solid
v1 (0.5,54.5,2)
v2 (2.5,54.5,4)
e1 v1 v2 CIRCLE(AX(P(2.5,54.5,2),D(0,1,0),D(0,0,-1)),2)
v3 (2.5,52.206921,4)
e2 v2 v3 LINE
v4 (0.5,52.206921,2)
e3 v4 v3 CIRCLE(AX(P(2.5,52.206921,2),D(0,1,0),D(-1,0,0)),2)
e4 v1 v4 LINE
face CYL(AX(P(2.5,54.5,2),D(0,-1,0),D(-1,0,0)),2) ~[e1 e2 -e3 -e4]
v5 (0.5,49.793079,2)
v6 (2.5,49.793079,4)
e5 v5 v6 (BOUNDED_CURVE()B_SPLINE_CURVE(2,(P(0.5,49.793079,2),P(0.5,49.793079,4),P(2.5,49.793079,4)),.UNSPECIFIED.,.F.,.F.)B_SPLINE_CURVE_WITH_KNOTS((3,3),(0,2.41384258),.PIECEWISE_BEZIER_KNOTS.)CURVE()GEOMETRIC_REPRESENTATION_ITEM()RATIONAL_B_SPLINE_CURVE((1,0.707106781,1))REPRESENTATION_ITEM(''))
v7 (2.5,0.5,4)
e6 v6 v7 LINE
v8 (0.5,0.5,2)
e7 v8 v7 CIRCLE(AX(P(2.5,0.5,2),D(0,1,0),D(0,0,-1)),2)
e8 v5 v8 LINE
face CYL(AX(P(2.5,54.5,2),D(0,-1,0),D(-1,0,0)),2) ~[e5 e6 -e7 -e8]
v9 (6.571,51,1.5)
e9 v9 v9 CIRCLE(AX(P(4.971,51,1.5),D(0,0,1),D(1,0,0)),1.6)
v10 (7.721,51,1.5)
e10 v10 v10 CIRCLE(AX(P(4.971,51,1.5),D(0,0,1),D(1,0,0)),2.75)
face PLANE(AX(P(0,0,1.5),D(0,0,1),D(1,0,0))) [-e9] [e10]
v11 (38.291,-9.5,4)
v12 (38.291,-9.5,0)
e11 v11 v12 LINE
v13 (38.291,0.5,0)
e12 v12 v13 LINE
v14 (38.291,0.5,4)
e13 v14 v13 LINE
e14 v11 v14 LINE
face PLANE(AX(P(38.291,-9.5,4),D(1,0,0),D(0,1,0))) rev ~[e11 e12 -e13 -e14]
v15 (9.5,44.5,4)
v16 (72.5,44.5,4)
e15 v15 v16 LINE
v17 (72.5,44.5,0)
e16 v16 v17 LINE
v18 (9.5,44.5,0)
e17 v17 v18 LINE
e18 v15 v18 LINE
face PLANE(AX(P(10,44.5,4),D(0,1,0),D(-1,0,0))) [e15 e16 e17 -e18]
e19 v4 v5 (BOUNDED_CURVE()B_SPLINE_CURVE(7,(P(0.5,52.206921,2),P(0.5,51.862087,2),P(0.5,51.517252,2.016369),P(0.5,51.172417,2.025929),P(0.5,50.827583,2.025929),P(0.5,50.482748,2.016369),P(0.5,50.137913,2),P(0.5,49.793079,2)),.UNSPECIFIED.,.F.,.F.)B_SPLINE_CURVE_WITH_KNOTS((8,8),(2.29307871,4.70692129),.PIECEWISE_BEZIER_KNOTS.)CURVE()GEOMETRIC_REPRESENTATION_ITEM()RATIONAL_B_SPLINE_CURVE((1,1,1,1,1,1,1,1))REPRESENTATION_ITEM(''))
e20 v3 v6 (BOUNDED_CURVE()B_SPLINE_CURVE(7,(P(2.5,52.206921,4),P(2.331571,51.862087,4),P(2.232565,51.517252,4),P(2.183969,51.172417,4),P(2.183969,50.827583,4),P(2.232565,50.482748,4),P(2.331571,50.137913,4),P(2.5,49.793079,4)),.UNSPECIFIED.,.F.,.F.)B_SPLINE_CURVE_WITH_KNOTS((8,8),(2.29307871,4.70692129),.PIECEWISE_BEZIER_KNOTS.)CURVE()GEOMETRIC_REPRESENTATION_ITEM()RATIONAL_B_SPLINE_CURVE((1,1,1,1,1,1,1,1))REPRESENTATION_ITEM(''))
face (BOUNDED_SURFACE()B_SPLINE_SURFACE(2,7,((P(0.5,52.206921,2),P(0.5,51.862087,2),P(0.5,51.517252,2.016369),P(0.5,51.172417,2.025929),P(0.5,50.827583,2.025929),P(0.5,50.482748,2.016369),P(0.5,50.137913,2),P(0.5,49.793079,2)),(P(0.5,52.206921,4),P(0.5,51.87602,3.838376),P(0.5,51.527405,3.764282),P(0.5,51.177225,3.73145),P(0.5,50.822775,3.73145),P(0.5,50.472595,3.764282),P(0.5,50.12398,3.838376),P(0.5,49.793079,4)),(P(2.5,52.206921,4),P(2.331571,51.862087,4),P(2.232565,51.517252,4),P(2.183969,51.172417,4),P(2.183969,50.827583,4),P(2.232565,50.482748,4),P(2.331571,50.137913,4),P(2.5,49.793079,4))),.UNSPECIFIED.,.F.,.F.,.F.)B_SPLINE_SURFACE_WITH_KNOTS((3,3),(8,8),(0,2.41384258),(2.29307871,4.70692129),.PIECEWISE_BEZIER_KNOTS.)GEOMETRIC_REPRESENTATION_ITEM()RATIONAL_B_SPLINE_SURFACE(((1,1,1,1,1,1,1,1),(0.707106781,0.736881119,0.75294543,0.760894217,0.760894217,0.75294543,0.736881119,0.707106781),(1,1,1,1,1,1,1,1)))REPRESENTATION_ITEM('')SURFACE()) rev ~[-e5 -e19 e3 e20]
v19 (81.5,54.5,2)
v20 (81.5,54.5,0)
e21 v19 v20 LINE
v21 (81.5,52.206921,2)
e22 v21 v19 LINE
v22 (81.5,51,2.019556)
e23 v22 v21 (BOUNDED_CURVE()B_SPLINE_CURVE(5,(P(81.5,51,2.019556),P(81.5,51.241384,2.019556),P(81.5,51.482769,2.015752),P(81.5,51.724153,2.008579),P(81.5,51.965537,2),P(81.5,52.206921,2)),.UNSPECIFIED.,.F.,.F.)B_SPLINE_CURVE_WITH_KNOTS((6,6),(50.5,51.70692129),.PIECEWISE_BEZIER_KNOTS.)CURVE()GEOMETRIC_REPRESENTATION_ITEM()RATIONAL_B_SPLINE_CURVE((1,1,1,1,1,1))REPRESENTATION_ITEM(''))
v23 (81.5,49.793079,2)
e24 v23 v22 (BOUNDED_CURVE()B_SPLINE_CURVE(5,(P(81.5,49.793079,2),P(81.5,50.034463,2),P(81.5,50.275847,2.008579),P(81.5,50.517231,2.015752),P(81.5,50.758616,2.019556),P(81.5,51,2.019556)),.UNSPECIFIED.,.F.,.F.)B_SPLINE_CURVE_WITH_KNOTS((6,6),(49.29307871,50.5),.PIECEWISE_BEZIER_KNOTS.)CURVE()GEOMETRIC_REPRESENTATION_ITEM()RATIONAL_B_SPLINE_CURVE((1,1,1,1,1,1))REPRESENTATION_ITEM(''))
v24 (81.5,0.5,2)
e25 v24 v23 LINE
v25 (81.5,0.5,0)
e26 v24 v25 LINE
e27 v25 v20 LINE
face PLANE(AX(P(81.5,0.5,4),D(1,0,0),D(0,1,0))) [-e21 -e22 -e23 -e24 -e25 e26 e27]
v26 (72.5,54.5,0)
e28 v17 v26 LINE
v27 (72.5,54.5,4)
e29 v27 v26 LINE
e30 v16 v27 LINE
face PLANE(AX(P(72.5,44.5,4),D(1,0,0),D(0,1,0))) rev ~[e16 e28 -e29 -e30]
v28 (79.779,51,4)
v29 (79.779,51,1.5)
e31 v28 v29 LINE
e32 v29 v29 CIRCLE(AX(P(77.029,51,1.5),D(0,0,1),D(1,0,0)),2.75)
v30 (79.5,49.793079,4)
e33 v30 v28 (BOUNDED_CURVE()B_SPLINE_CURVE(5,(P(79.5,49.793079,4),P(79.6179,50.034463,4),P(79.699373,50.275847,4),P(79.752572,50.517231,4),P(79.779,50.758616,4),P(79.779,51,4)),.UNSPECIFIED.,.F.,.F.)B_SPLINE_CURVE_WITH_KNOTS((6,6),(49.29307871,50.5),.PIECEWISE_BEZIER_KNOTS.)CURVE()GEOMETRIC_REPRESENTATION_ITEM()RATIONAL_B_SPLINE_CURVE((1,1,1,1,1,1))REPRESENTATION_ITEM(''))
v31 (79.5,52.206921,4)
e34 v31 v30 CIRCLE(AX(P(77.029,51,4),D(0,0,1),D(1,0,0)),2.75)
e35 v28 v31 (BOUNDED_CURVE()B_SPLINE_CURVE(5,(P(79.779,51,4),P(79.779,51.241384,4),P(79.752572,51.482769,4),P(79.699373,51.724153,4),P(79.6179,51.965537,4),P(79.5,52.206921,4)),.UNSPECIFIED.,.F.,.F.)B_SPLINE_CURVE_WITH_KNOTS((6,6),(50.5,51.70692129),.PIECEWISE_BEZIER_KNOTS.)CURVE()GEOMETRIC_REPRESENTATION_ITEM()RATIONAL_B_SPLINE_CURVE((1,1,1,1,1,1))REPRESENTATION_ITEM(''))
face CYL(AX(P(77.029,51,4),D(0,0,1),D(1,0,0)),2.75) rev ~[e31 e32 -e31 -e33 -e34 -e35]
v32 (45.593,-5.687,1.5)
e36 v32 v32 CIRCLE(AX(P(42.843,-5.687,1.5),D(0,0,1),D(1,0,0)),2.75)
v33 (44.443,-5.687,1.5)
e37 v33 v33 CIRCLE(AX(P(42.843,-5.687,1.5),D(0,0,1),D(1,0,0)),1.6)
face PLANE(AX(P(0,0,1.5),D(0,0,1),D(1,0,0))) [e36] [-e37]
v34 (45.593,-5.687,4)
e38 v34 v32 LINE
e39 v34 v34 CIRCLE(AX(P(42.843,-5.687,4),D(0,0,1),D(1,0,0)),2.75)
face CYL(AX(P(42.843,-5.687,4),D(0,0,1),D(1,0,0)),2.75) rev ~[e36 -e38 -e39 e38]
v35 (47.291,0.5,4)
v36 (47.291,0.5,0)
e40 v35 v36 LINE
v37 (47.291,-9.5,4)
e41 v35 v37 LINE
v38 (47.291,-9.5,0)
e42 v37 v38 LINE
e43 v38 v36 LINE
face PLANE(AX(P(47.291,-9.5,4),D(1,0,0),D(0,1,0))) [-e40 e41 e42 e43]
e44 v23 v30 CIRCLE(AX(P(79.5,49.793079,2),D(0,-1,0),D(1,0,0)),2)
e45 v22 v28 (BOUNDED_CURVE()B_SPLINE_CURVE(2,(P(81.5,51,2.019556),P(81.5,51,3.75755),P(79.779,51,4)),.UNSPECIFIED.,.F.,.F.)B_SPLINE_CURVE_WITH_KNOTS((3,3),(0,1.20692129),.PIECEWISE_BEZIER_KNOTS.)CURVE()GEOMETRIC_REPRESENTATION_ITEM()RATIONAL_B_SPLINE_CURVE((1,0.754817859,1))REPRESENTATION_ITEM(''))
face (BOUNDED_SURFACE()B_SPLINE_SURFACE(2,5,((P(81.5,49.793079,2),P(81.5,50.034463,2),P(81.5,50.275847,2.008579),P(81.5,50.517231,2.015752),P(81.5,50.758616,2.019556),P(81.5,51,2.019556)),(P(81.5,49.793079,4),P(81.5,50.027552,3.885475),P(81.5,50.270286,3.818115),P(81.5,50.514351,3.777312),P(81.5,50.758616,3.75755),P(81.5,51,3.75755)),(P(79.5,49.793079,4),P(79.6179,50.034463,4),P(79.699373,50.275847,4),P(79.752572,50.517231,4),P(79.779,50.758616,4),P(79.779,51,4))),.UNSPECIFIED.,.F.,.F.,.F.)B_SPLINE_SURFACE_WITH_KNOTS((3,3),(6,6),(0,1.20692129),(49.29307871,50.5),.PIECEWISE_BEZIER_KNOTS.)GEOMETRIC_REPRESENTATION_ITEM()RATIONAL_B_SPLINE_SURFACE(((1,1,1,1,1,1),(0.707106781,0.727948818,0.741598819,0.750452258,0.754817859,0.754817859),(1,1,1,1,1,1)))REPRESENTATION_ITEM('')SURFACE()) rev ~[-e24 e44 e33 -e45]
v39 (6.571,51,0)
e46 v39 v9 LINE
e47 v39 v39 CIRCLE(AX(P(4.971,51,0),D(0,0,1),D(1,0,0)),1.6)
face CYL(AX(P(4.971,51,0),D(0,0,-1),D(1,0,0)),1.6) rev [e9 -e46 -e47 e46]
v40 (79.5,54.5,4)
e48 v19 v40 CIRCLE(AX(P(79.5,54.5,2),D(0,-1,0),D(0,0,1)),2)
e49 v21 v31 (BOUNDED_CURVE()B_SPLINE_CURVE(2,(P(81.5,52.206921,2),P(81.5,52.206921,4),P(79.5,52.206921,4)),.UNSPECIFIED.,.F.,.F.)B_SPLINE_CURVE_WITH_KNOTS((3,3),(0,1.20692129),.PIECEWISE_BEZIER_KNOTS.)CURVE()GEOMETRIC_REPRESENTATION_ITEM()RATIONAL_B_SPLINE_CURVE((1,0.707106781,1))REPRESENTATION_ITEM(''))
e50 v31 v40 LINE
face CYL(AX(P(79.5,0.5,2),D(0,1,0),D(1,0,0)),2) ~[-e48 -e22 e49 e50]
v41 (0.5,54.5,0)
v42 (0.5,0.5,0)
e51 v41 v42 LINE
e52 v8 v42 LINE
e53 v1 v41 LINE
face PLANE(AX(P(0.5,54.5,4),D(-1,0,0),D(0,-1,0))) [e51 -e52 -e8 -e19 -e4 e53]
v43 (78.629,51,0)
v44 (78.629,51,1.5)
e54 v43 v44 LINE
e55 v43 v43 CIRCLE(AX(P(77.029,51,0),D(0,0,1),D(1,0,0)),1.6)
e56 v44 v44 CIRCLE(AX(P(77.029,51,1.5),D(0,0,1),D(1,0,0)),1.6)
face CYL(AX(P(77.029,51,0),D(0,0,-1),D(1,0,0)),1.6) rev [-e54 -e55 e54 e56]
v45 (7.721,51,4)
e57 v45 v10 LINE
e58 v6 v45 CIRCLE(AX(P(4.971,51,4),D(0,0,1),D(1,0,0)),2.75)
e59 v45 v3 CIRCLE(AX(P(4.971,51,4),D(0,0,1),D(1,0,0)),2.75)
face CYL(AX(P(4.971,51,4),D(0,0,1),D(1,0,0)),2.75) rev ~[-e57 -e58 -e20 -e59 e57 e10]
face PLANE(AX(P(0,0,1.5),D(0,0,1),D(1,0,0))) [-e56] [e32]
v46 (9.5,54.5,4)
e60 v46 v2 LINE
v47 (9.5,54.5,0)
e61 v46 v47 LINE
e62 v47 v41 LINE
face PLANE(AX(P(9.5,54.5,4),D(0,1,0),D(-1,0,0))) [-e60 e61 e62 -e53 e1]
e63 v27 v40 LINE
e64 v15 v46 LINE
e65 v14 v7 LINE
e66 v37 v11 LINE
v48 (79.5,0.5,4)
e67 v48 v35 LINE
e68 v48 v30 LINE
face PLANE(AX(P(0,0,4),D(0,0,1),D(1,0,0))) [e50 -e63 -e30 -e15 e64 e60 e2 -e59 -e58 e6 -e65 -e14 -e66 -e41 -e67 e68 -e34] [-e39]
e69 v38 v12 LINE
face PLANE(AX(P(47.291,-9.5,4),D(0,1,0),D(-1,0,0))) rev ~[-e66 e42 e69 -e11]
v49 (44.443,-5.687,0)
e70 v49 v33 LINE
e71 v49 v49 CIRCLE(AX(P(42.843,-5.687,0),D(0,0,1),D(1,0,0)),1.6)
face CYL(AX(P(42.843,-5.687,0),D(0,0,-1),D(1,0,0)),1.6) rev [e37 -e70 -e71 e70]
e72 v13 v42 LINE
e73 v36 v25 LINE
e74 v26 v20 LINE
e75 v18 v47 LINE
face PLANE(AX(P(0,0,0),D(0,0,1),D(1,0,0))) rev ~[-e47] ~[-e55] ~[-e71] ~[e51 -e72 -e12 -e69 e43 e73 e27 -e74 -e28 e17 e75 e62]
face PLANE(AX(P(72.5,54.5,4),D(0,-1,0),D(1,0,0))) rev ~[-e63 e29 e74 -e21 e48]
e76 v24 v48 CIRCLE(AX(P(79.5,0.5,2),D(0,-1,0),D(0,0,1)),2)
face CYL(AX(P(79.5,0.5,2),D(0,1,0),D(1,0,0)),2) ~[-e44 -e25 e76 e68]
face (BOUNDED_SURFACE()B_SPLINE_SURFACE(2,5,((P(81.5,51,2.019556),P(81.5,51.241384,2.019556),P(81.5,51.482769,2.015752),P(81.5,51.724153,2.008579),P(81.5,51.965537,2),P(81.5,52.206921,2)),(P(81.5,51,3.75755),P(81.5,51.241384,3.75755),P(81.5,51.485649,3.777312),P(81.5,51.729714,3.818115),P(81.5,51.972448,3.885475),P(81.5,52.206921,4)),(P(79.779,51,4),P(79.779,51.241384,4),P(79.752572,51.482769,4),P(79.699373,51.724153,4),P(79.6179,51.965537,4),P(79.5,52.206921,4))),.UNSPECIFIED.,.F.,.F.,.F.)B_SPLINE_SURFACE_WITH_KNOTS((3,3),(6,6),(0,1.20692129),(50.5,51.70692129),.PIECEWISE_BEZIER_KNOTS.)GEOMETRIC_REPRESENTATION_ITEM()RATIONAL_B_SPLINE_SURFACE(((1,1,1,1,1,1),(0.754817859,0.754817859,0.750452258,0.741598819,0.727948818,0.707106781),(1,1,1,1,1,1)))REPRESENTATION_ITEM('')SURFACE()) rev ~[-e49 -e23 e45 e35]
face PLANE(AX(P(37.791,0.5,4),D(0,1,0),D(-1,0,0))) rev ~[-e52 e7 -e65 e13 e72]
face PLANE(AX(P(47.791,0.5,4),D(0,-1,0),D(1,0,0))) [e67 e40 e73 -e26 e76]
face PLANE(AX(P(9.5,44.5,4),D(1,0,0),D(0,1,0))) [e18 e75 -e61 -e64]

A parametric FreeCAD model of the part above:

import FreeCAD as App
import Part
import Sketcher

V = App.Vector
Q = App.Units.Quantity


def edges_at(feature, points):
    """Names of the edges that pass closest to the given points."""
    edges = feature.Shape.Edges
    near = lambda p: min(range(len(edges)), key=lambda i: edges[i].distToShape(Part.Vertex(*p))[0])
    return sorted({f"Edge{near(p) + 1}" for p in points})


def add_polygon(sketch, points):
    """Adds a closed chain of lines whose ends are joined by coincident constraints."""
    first, n = sketch.GeometryCount, len(points)
    for a, b in zip(points, points[1:] + points[:1]):
        sketch.addGeometry(Part.LineSegment(App.Vector(*a, 0), App.Vector(*b, 0)), False)
    for i in range(n):
        sketch.addConstraint(Sketcher.Constraint("Coincident", first + i, 2, first + (i + 1) % n, 1))

doc = App.newDocument("Part")
body = doc.addObject("PartDesign::Body", "Body")

sketch1 = body.newObject("Sketcher::SketchObject", "Sketch")
sketch1.AttachmentSupport = (doc.getObject("XY_Plane"), [""])
sketch1.MapMode = "FlatFace"
add_polygon(sketch1, [(47.791, 0), (82, 0), (82, 55), (72, 55), (72, 45), (10, 45), (10, 55), (0, 55), (0, 0), (37.791, 0), (37.791, -10), (47.791, -10)])
sketch1.addGeometry(Part.Circle(V(42.843, -5.687, 0), V(0, 0, 1), 1.6), False)
sketch1.addGeometry(Part.Circle(V(4.971, 51, 0), V(0, 0, 1), 1.6), False)
sketch1.addGeometry(Part.Circle(V(77.029, 51, 0), V(0, 0, 1), 1.6), False)
sketch1.addConstraint([
    Sketcher.Constraint("Horizontal", 0),
    Sketcher.Constraint("Vertical", 1),
    Sketcher.Constraint("Horizontal", 2),
    Sketcher.Constraint("Vertical", 3),
    Sketcher.Constraint("Horizontal", 4),
    Sketcher.Constraint("Vertical", 5),
    Sketcher.Constraint("Horizontal", 6),
    Sketcher.Constraint("Vertical", 7),
    Sketcher.Constraint("Horizontal", 8),
    Sketcher.Constraint("Vertical", 9),
    Sketcher.Constraint("Horizontal", 10),
    Sketcher.Constraint("Vertical", 11),
    Sketcher.Constraint("Coincident", 7, 2, -1, 1),
    Sketcher.Constraint("Equal", 12, 13),
    Sketcher.Constraint("Equal", 13, 14),
    Sketcher.Constraint("PointOnObject", 0, 2, -1),
    Sketcher.Constraint("Horizontal", 13, 3, 14, 3),
    Sketcher.Constraint("Horizontal", 2, 2, 5, 2),
    Sketcher.Constraint("Equal", 2, 6),
    Sketcher.Constraint("Equal", 6, 10),
    Sketcher.Constraint("Equal", 10, 3),
    Sketcher.Constraint("Equal", 5, 9),
    Sketcher.Constraint("Diameter", 12, Q("3.2 mm")),
    Sketcher.Constraint("DistanceX", 2, 2, 2, 1, Q("10 mm")),
    Sketcher.Constraint("DistanceX", -1, 1, 0, 2, Q("82 mm")),
    Sketcher.Constraint("DistanceY", -1, 1, 3, 2, Q("45 mm")),
    Sketcher.Constraint("DistanceY", 3, 2, 14, 3, Q("6 mm")),
    Sketcher.Constraint("DistanceX", 8, 1, 8, 2, Q("37.791 mm")),
    Sketcher.Constraint("DistanceX", -1, 1, 12, 3, Q("42.843 mm")),
    Sketcher.Constraint("DistanceY", 12, 3, -1, 1, Q("5.687 mm")),
    Sketcher.Constraint("DistanceX", -1, 1, 13, 3, Q("4.971 mm")),
    Sketcher.Constraint("DistanceX", -1, 1, 14, 3, Q("77.029 mm")),
])
pad1 = body.newObject("PartDesign::Pad", "Pad")
pad1.Profile = sketch1
pad1.Length = 4

sketch2 = body.newObject("Sketcher::SketchObject", "Sketch001")
sketch2.AttachmentSupport = (doc.getObject("XY_Plane"), [""])
sketch2.MapMode = "FlatFace"
sketch2.AttachmentOffset = App.Placement(V(0, 0, 4), App.Rotation())
sketch2.addGeometry([
    Part.Circle(V(4.971, 51, 0), V(0, 0, 1), 2.75),
    Part.Circle(V(4.971, 51, 0), V(0, 0, 1), 1.6),
    Part.Circle(V(77.029, 51, 0), V(0, 0, 1), 2.75),
    Part.Circle(V(77.029, 51, 0), V(0, 0, 1), 1.6),
    Part.Circle(V(42.843, -5.687, 0), V(0, 0, 1), 2.75),
    Part.Circle(V(42.843, -5.687, 0), V(0, 0, 1), 1.6),
], False)
sketch2.addConstraint([
    Sketcher.Constraint("Coincident", 1, 3, 0, 3),
    Sketcher.Constraint("Coincident", 3, 3, 2, 3),
    Sketcher.Constraint("Coincident", 5, 3, 4, 3),
    Sketcher.Constraint("Equal", 0, 2),
    Sketcher.Constraint("Equal", 1, 3),
    Sketcher.Constraint("Equal", 2, 4),
    Sketcher.Constraint("Equal", 3, 5),
    Sketcher.Constraint("Horizontal", 1, 3, 2, 3),
    Sketcher.Constraint("Diameter", 0, Q("5.5 mm")),
    Sketcher.Constraint("Diameter", 1, Q("3.2 mm")),
    Sketcher.Constraint("DistanceY", -1, 1, 0, 3, Q("51 mm")),
    Sketcher.Constraint("DistanceX", -1, 1, 0, 3, Q("4.971 mm")),
    Sketcher.Constraint("DistanceX", -1, 1, 2, 3, Q("77.029 mm")),
    Sketcher.Constraint("DistanceX", -1, 1, 4, 3, Q("42.843 mm")),
    Sketcher.Constraint("DistanceY", 4, 3, -1, 1, Q("5.687 mm")),
])
pocket1 = body.newObject("PartDesign::Pocket", "Pocket")
pocket1.Profile = sketch2
pocket1.Length = 2.5

sketch3 = body.newObject("Sketcher::SketchObject", "Sketch002")
sketch3.AttachmentSupport = (doc.getObject("XY_Plane"), [""])
sketch3.MapMode = "FlatFace"
sketch3.AttachmentOffset = App.Placement(V(0, 0, 4), App.Rotation())
add_polygon(sketch3, [(10, 55), (0, 55), (0, 0), (37.791, 0), (37.791, -10), (47.791, -10), (47.791, 0), (82, 0), (82, 55), (72, 55), (72, 45), (10, 45)])
add_polygon(sketch3, [(9.5, 44.5), (72.5, 44.5), (72.5, 54.5), (81.5, 54.5), (81.5, 0.5), (47.291, 0.5), (47.291, -9.5), (38.291, -9.5), (38.291, 0.5), (0.5, 0.5), (0.5, 54.5), (9.5, 54.5)])
sketch3.addConstraint([
    Sketcher.Constraint("Horizontal", 0),
    Sketcher.Constraint("Vertical", 1),
    Sketcher.Constraint("Horizontal", 2),
    Sketcher.Constraint("Vertical", 3),
    Sketcher.Constraint("Horizontal", 4),
    Sketcher.Constraint("Vertical", 5),
    Sketcher.Constraint("Horizontal", 6),
    Sketcher.Constraint("Vertical", 7),
    Sketcher.Constraint("Horizontal", 8),
    Sketcher.Constraint("Vertical", 9),
    Sketcher.Constraint("Horizontal", 10),
    Sketcher.Constraint("Vertical", 11),
    Sketcher.Constraint("Horizontal", 12),
    Sketcher.Constraint("Vertical", 13),
    Sketcher.Constraint("Horizontal", 14),
    Sketcher.Constraint("Vertical", 15),
    Sketcher.Constraint("Horizontal", 16),
    Sketcher.Constraint("Vertical", 17),
    Sketcher.Constraint("Horizontal", 18),
    Sketcher.Constraint("Vertical", 19),
    Sketcher.Constraint("Horizontal", 20),
    Sketcher.Constraint("Vertical", 21),
    Sketcher.Constraint("Horizontal", 22),
    Sketcher.Constraint("Vertical", 23),
    Sketcher.Constraint("Coincident", 1, 2, -1, 1),
    Sketcher.Constraint("PointOnObject", 5, 2, -1),
    Sketcher.Constraint("Horizontal", 0, 2, 7, 2),
    Sketcher.Constraint("Horizontal", 16, 2, 19, 2),
    Sketcher.Constraint("Horizontal", 14, 2, 21, 2),
    Sketcher.Constraint("Equal", 0, 4),
    Sketcher.Constraint("Equal", 4, 8),
    Sketcher.Constraint("Equal", 6, 16),
    Sketcher.Constraint("Equal", 14, 18),
    Sketcher.Constraint("Equal", 2, 20),
    Sketcher.Constraint("Equal", 18, 22),
    Sketcher.Constraint("Equal", 8, 3),
    Sketcher.Constraint("Equal", 5, 9),
    Sketcher.Constraint("Equal", 11, 13),
    Sketcher.Constraint("Equal", 13, 17),
    Sketcher.Constraint("DistanceY", -1, 1, 15, 2, Q("0.5 mm")),
    Sketcher.Constraint("DistanceX", -1, 1, 20, 2, Q("0.5 mm")),
    Sketcher.Constraint("DistanceY", 12, 2, 9, 2, Q("0.5 mm")),
    Sketcher.Constraint("DistanceX", 14, 2, 7, 2, Q("0.5 mm")),
    Sketcher.Constraint("DistanceX", 0, 2, 0, 1, Q("10 mm")),
    Sketcher.Constraint("DistanceX", 10, 2, 10, 1, Q("62 mm")),
    Sketcher.Constraint("DistanceY", 1, 2, 1, 1, Q("55 mm")),
    Sketcher.Constraint("DistanceX", 2, 1, 2, 2, Q("37.791 mm")),
])
pocket2 = body.newObject("PartDesign::Pocket", "Pocket001")
pocket2.Profile = sketch3
pocket2.Length = 10
doc.recompute()

fillet = body.newObject("PartDesign::Fillet", "Fillet")
fillet.Base = (pocket2, edges_at(pocket2, [(0.5, 27.5, 4), (81.5, 27.5, 4)]))
fillet.Radius = 2

doc.recompute()
